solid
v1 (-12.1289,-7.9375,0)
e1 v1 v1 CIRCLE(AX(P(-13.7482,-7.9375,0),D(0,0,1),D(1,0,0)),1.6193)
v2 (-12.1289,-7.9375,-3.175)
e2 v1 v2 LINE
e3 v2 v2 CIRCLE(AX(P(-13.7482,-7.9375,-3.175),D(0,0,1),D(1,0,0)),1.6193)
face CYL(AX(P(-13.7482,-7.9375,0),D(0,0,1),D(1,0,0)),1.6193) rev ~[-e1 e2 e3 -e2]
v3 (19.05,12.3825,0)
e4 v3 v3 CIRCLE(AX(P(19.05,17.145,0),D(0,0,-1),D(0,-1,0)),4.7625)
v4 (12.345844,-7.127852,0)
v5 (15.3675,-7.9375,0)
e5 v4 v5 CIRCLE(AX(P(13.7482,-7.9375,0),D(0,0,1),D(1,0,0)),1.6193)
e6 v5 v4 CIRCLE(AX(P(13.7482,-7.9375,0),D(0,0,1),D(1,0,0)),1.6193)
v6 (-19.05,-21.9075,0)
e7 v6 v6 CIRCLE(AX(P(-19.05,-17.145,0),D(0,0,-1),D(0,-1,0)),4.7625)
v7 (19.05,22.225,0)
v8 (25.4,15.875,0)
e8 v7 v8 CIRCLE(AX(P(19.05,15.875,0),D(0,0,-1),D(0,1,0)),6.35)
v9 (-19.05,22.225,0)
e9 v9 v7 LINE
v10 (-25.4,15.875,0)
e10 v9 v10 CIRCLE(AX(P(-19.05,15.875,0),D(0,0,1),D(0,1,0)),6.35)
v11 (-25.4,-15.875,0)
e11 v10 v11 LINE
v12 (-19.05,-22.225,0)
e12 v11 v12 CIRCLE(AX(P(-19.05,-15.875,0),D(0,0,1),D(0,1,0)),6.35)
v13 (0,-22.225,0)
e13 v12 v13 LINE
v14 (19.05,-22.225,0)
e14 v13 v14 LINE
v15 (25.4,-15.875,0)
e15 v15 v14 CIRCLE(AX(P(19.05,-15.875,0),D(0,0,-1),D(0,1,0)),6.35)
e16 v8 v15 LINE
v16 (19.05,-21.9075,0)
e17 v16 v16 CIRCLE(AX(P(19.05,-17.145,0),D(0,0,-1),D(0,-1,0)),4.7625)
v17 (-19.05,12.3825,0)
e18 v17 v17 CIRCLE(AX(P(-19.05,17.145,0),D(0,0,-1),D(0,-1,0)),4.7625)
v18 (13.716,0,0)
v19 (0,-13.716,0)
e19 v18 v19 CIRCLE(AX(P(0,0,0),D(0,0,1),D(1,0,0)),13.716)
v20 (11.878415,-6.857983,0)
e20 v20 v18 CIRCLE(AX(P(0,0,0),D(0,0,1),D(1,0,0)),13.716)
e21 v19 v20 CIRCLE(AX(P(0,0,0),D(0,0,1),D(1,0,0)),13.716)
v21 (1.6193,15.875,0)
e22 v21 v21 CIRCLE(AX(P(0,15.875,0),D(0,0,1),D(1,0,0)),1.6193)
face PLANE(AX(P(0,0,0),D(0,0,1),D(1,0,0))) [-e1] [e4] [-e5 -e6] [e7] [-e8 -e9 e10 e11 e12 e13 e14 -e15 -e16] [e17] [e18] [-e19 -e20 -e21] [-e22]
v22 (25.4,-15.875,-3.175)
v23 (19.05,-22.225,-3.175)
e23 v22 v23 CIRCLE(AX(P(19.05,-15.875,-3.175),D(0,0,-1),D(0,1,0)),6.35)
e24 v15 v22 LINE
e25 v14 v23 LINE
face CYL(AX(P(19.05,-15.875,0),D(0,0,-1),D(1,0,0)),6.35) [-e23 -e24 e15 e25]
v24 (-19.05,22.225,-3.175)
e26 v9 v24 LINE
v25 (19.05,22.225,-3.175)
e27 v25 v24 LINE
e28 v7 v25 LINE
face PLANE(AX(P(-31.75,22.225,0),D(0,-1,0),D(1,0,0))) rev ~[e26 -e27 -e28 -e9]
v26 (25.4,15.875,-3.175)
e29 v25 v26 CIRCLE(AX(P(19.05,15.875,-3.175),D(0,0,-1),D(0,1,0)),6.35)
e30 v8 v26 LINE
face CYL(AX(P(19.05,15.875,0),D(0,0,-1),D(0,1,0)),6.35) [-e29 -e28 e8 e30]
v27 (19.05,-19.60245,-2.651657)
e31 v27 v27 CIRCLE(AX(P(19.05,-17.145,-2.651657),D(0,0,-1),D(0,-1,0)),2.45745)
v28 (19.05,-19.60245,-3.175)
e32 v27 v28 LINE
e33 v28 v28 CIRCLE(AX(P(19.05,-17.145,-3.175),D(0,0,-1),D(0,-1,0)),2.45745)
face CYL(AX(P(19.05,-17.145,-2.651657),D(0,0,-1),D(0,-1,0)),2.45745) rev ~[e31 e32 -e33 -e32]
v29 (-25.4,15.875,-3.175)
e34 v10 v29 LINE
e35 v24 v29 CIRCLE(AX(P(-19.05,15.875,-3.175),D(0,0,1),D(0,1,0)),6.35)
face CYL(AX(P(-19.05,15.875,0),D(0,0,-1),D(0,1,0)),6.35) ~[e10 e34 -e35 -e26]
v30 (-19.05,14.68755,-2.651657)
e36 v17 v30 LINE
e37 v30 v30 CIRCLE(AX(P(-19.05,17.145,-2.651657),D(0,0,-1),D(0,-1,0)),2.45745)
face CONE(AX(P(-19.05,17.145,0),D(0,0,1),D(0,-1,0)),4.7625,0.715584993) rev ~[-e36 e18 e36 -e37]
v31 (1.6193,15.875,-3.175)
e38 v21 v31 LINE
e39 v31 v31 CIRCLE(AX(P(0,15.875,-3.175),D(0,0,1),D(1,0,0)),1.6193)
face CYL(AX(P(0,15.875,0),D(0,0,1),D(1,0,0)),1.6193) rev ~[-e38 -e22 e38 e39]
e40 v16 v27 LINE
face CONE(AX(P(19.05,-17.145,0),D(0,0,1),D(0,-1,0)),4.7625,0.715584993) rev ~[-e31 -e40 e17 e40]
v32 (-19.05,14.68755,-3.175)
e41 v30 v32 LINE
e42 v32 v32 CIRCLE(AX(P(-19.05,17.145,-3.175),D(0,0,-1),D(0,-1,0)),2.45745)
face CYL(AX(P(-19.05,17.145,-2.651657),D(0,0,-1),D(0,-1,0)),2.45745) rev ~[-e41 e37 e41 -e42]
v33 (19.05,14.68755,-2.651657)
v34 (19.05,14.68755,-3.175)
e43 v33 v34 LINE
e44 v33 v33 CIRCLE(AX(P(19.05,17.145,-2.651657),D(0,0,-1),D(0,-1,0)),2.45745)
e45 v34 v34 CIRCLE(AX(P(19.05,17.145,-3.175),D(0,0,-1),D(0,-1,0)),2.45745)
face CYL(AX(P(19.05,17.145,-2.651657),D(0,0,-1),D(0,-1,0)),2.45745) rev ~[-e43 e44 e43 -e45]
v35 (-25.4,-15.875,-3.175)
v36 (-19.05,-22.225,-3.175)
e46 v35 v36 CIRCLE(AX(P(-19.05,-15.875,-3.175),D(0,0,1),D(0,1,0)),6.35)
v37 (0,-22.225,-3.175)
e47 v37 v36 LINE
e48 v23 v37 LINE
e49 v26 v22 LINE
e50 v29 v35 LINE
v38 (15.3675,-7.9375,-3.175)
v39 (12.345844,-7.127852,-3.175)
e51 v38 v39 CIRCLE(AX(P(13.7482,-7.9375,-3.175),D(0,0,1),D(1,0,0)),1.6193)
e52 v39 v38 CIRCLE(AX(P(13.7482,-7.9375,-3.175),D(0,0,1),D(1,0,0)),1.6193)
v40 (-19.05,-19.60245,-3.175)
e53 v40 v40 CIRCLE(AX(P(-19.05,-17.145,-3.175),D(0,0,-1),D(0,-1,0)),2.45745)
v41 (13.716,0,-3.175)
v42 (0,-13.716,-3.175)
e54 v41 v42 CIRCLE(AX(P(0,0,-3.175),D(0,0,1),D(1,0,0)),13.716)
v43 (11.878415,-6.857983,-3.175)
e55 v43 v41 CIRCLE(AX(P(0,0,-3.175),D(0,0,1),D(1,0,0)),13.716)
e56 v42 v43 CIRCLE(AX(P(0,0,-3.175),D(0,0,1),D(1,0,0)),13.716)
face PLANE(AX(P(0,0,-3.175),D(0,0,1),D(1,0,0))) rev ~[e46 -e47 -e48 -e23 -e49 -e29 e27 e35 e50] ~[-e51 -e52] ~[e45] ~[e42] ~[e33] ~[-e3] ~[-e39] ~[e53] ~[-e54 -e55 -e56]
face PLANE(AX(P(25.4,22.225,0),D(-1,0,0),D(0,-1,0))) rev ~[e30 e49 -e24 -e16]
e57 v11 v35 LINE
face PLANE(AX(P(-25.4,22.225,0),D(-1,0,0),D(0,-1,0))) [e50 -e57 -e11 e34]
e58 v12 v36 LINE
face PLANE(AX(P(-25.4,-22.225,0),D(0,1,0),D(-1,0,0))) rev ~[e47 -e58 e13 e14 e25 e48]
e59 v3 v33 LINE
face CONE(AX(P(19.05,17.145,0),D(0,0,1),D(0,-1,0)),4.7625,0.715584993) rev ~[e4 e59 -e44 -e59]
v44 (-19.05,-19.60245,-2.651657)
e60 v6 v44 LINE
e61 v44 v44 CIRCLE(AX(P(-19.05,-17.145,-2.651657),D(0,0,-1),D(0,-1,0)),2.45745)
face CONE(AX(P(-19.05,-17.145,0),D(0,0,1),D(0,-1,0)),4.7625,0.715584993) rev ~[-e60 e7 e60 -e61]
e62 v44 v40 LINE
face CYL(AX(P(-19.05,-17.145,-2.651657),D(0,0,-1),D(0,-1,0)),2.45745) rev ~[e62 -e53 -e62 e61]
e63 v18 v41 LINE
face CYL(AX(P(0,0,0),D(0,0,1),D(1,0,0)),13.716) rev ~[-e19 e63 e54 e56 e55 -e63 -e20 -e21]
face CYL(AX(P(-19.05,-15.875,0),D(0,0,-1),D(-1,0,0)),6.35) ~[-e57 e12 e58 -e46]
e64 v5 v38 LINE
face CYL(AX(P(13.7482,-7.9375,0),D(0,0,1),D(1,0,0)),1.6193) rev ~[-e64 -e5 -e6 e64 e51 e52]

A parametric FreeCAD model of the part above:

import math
import FreeCAD as App
import Part
import Sketcher

V = App.Vector
Q = App.Units.Quantity


def edges_at(feature, points):
    """Names of the edges that pass closest to the given points."""
    edges = feature.Shape.Edges
    near = lambda p: min(range(len(edges)), key=lambda i: edges[i].distToShape(Part.Vertex(*p))[0])
    return sorted({f"Edge{near(p) + 1}" for p in points})

doc = App.newDocument("Part")
body = doc.addObject("PartDesign::Body", "Body")

# Sketch on XY plane
sketch1 = body.newObject("Sketcher::SketchObject", "Sketch")
sketch1.AttachmentSupport = (doc.getObject("XY_Plane"), [""])
sketch1.MapMode = "FlatFace"
sketch1.addGeometry(Part.LineSegment(V(-31.75, 22.225, 0), V(-31.75, -22.225, 0)), False)
sketch1.addGeometry(Part.LineSegment(V(-31.75, -22.225, 0), V(0, -22.225, 0)), False)
sketch1.addGeometry(Part.LineSegment(V(0, -22.225, 0), V(31.75, -22.225, 0)), False)
sketch1.addGeometry(Part.LineSegment(V(31.75, -22.225, 0), V(31.75, 22.225, 0)), False)
sketch1.addGeometry(Part.LineSegment(V(31.75, 22.225, 0), V(-31.75, 22.225, 0)), False)
sketch1.addGeometry(Part.Circle(V(-13.7482, -7.9375, 0), V(0, 0, 1), 1.6193), False)
sketch1.addGeometry(Part.Circle(V(13.7482, -7.9375, 0), V(0, 0, 1), 1.6193), False)
sketch1.addGeometry(Part.ArcOfCircle(Part.Circle(V(0, 0, 0), V(0, 0, 1), 13.716), math.radians(-90), math.radians(-29.999916)), False)
sketch1.addGeometry(Part.ArcOfCircle(Part.Circle(V(0, 0, 0), V(0, 0, 1), 13.716), math.radians(-29.999916), math.radians(270)), False)
sketch1.addGeometry(Part.Circle(V(0, 15.875, 0), V(0, 0, 1), 1.6193), False)
sketch1.addConstraint(Sketcher.Constraint("Coincident", 0, 2, 1, 1))
sketch1.addConstraint(Sketcher.Constraint("Coincident", 1, 2, 2, 1))
sketch1.addConstraint(Sketcher.Constraint("Coincident", 2, 2, 3, 1))
sketch1.addConstraint(Sketcher.Constraint("Coincident", 3, 2, 4, 1))
sketch1.addConstraint(Sketcher.Constraint("Coincident", 4, 2, 0, 1))
sketch1.addConstraint(Sketcher.Constraint("Tangent", 7, 1, 8, 2))
sketch1.addConstraint(Sketcher.Constraint("Coincident", 8, 1, 7, 2))
sketch1.addConstraint(Sketcher.Constraint("Vertical", 0))
sketch1.addConstraint(Sketcher.Constraint("Horizontal", 1))
sketch1.addConstraint(Sketcher.Constraint("Horizontal", 2))
sketch1.addConstraint(Sketcher.Constraint("Vertical", 3))
sketch1.addConstraint(Sketcher.Constraint("Horizontal", 4))
sketch1.addConstraint(Sketcher.Constraint("Coincident", 7, 3, -1, 1))
sketch1.addConstraint(Sketcher.Constraint("Equal", 5, 6))
sketch1.addConstraint(Sketcher.Constraint("Equal", 6, 9))
sketch1.addConstraint(Sketcher.Constraint("Symmetric", 0, 2, 3, 2, -1, 1))
sketch1.addConstraint(Sketcher.Constraint("Symmetric", 5, 3, 6, 3, -2))
sketch1.addConstraint(Sketcher.Constraint("PointOnObject", 9, 3, -2))
sketch1.addConstraint(Sketcher.Constraint("PointOnObject", 1, 2, -2))
sketch1.addConstraint(Sketcher.Constraint("PointOnObject", 7, 1, -2))
sketch1.addConstraint(Sketcher.Constraint("Radius", 7, Q("0.54 in")))
sketch1.addConstraint(Sketcher.Constraint("DistanceX", 4, 2, 4, 1, Q("2.5 in")))
sketch1.addConstraint(Sketcher.Constraint("Diameter", 5, Q("0.1275 in")))
sketch1.addConstraint(Sketcher.Constraint("DistanceY", 0, 2, 0, 1, Q("1.75 in")))
sketch1.addConstraint(Sketcher.Constraint("DistanceY", 0, 2, 9, 3, Q("1.5 in")))
sketch1.addConstraint(Sketcher.Constraint("DistanceY", 8, 1, -1, 1, Q("0.27 in")))
sketch1.addConstraint(Sketcher.Constraint("DistanceY", 5, 3, -1, 1, Q("0.3125 in")))
sketch1.addConstraint(Sketcher.Constraint("DistanceX", 5, 3, -1, 1, Q("13.7482 mm")))
pad1 = body.newObject("PartDesign::Pad", "Pad")
pad1.Profile = sketch1
pad1.Length = Q("0.125 in")
pad1.Reversed = True

# Sketch on XY plane
sketch2 = body.newObject("Sketcher::SketchObject", "Sketch001")
sketch2.AttachmentSupport = (doc.getObject("XY_Plane"), [""])
sketch2.MapMode = "FlatFace"
sketch2.addGeometry(Part.Circle(V(-19.05, 17.145, 0), V(0, 0, 1), 2.45745), False)
sketch2.addGeometry(Part.Circle(V(-19.05, -17.145, 0), V(0, 0, 1), 2.45745), False)
sketch2.addGeometry(Part.Circle(V(19.05, -17.145, 0), V(0, 0, 1), 2.45745), False)
sketch2.addGeometry(Part.Circle(V(19.05, 17.145, 0), V(0, 0, 1), 2.45745), False)
sketch2.addConstraint(Sketcher.Constraint("Equal", 0, 1))
sketch2.addConstraint(Sketcher.Constraint("Equal", 1, 2))
sketch2.addConstraint(Sketcher.Constraint("Equal", 2, 3))
sketch2.addConstraint(Sketcher.Constraint("Symmetric", 0, 3, 2, 3, -1, 1))
sketch2.addConstraint(Sketcher.Constraint("Symmetric", 1, 3, 3, 3, -1, 1))
sketch2.addConstraint(Sketcher.Constraint("Symmetric", 1, 3, 2, 3, -2))
sketch2.addConstraint(Sketcher.Constraint("Diameter", 0, Q("0.1935 in")))
sketch2.addConstraint(Sketcher.Constraint("DistanceX", 1, 3, 2, 3, Q("1.5 in")))
sketch2.addConstraint(Sketcher.Constraint("DistanceY", 1, 3, 0, 3, Q("1.35 in")))
doc.recompute()
hole = body.newObject("PartDesign::Hole", "Hole")
hole.Profile = sketch2
hole.ThreadType = "None"
hole.Diameter = Q("0.1935 in")
hole.DepthType = "ThroughAll"
hole.HoleCutType = "Countersink"
hole.HoleCutDiameter = Q("0.375 in")
hole.HoleCutCountersinkAngle = 82

# Sketch on XY plane
sketch3 = body.newObject("Sketcher::SketchObject", "Sketch002")
sketch3.AttachmentSupport = (doc.getObject("XY_Plane"), [""])
sketch3.MapMode = "FlatFace"
sketch3.addGeometry(Part.LineSegment(V(-25.4, 22.225, 0), V(-31.75, 22.225, 0)), False)
sketch3.addGeometry(Part.LineSegment(V(-31.75, 22.225, 0), V(-31.75, -22.225, 0)), False)
sketch3.addGeometry(Part.LineSegment(V(-31.75, -22.225, 0), V(-25.4, -22.225, 0)), False)
sketch3.addGeometry(Part.LineSegment(V(-25.4, -22.225, 0), V(-25.4, 22.225, 0)), False)
sketch3.addGeometry(Part.LineSegment(V(31.75, 22.225, 0), V(25.4, 22.225, 0)), False)
sketch3.addGeometry(Part.LineSegment(V(25.4, 22.225, 0), V(25.4, -22.225, 0)), False)
sketch3.addGeometry(Part.LineSegment(V(25.4, -22.225, 0), V(31.75, -22.225, 0)), False)
sketch3.addGeometry(Part.LineSegment(V(31.75, -22.225, 0), V(31.75, 22.225, 0)), False)
sketch3.addConstraint(Sketcher.Constraint("Coincident", 0, 2, 1, 1))
sketch3.addConstraint(Sketcher.Constraint("Coincident", 1, 2, 2, 1))
sketch3.addConstraint(Sketcher.Constraint("Coincident", 2, 2, 3, 1))
sketch3.addConstraint(Sketcher.Constraint("Coincident", 3, 2, 0, 1))
sketch3.addConstraint(Sketcher.Constraint("Coincident", 4, 2, 5, 1))
sketch3.addConstraint(Sketcher.Constraint("Coincident", 5, 2, 6, 1))
sketch3.addConstraint(Sketcher.Constraint("Coincident", 6, 2, 7, 1))
sketch3.addConstraint(Sketcher.Constraint("Coincident", 7, 2, 4, 1))
sketch3.addConstraint(Sketcher.Constraint("Horizontal", 0))
sketch3.addConstraint(Sketcher.Constraint("Vertical", 1))
sketch3.addConstraint(Sketcher.Constraint("Horizontal", 2))
sketch3.addConstraint(Sketcher.Constraint("Vertical", 3))
sketch3.addConstraint(Sketcher.Constraint("Horizontal", 4))
sketch3.addConstraint(Sketcher.Constraint("Vertical", 5))
sketch3.addConstraint(Sketcher.Constraint("Horizontal", 6))
sketch3.addConstraint(Sketcher.Constraint("Vertical", 7))
sketch3.addConstraint(Sketcher.Constraint("Symmetric", 2, 2, 4, 2, -1, 1))
sketch3.addConstraint(Sketcher.Constraint("Symmetric", 0, 2, 6, 2, -1, 1))
sketch3.addConstraint(Sketcher.Constraint("Horizontal", 3, 2, 4, 2))
sketch3.addConstraint(Sketcher.Constraint("DistanceX", 0, 2, 0, 1, Q("0.25 in")))
sketch3.addConstraint(Sketcher.Constraint("DistanceY", 1, 2, 1, 1, Q("1.75 in")))
sketch3.addConstraint(Sketcher.Constraint("DistanceX", 1, 2, 6, 2, Q("2.5 in")))
pocket1 = body.newObject("PartDesign::Pocket", "Pocket")
pocket1.Profile = sketch3
pocket1.Type = "ThroughAll"
doc.recompute()

fillet = body.newObject("PartDesign::Fillet", "Fillet")
fillet.Base = (pocket1, edges_at(pocket1, [
    (25.4, 22.225, -1.587),
    (25.4, -22.225, -1.587),
    (-25.4, -22.225, -1.587),
    (-25.4, 22.225, -1.587),
]))
fillet.Radius = Q("0.25 in")

doc.recompute()
